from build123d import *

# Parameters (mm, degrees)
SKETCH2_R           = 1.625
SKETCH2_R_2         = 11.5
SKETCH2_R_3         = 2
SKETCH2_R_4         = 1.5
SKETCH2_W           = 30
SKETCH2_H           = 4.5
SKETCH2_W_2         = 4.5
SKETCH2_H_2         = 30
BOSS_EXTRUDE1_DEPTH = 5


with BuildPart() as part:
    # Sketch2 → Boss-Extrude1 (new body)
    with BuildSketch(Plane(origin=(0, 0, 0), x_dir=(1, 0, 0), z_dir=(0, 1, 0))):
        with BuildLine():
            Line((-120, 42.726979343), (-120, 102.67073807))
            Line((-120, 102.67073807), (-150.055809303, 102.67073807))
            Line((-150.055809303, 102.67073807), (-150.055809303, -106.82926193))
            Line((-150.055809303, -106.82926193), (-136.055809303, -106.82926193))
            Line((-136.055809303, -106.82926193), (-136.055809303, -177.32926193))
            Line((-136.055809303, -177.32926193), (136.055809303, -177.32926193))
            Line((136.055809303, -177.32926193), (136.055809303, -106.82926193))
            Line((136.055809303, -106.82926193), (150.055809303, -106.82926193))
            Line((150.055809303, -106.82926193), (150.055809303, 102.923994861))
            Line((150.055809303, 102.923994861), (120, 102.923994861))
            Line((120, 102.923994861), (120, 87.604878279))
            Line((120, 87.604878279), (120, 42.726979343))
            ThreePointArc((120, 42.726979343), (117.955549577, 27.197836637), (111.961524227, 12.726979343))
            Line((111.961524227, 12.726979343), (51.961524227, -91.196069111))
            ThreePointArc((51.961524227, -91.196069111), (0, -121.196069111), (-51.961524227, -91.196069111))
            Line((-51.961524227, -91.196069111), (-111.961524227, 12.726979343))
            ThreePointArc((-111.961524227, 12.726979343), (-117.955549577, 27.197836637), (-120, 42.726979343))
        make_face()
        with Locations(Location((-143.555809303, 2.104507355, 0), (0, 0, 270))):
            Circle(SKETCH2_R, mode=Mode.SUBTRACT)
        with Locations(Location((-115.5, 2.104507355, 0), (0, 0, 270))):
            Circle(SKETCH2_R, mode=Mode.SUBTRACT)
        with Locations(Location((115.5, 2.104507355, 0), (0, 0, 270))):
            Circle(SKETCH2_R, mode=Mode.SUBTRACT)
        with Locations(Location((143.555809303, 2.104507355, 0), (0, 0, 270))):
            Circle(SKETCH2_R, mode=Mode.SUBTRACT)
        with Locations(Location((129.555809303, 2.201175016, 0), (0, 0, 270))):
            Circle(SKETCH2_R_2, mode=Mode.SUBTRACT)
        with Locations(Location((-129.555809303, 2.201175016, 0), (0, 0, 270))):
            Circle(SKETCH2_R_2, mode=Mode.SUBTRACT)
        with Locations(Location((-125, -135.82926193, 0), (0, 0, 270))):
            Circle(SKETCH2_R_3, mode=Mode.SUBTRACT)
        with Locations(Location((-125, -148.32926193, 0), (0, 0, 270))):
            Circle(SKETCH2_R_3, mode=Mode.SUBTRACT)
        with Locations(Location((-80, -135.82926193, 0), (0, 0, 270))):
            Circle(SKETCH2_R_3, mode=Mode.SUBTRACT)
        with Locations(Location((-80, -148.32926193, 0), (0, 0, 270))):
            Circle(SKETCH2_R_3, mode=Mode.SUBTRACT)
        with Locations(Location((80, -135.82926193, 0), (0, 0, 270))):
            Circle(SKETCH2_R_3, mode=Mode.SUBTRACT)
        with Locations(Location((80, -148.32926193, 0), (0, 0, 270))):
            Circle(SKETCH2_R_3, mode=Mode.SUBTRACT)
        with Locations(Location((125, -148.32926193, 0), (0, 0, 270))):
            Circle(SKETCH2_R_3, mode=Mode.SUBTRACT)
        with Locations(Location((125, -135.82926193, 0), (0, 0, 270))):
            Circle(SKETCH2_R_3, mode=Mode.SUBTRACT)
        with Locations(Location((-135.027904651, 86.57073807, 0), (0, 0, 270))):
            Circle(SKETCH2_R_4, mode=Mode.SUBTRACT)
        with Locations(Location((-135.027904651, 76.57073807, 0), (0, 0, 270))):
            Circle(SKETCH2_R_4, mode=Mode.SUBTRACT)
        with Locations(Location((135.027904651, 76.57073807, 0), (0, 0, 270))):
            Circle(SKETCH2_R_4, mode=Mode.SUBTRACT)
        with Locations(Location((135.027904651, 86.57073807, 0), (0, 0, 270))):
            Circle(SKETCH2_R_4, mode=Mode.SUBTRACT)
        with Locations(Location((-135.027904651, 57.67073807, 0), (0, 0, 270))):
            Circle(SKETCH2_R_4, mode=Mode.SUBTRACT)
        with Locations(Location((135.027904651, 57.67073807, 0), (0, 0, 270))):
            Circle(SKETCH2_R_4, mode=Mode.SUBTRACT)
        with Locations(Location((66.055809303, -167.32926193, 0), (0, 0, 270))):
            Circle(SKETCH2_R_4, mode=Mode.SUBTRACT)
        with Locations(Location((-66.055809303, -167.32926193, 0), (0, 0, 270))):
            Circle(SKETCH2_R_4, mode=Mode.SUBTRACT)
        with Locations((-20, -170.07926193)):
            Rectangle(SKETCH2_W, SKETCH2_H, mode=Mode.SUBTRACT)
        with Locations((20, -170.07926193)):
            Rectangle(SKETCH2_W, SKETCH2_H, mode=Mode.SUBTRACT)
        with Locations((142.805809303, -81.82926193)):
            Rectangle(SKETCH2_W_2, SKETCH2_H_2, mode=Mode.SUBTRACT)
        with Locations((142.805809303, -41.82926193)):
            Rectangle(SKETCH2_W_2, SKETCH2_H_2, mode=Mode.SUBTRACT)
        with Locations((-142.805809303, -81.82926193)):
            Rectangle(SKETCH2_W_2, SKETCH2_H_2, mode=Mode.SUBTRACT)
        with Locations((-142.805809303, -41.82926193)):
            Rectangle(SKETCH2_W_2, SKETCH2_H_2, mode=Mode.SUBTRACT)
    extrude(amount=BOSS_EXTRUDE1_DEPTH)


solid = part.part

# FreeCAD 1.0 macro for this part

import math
import FreeCAD as App
import Part
import Sketcher
from FreeCAD import Vector
Q = App.Units.Quantity


def add_polygon(sketch, points):
    """Adds a closed chain of lines whose ends are joined by coincident constraints."""
    first, n = sketch.GeometryCount, len(points)
    for a, b in zip(points, points[1:] + points[:1]):
        sketch.addGeometry(Part.LineSegment(App.Vector(*a, 0), App.Vector(*b, 0)), False)
    for i in range(n):
        sketch.addConstraint(Sketcher.Constraint("Coincident", first + i, 2, first + (i + 1) % n, 1))

doc = App.newDocument("Part")
params = doc.addObject("Spreadsheet::Sheet", "Params")
for row, (alias, value) in enumerate([
    ("sketch1_diameter", "4 mm"),
    ("sketch1_diameter2", "3 mm"),
    ("sketch1_diameter3", "23 mm"),
    ("sketch1_radius", "60 mm"),
    ("sketch1_diameter4", "3.25 mm"),
    ("pad1_length", "5 mm"),
], start=1):
    params.set(f"A{row}", alias)
    params.set(f"B{row}", "=" + value)
    params.setAlias(f"B{row}", alias)

body = doc.addObject("PartDesign::Body", "Body")

# Sketch on XZ plane
sketch1 = body.newObject("Sketcher::SketchObject", "Sketch")
sketch1.AttachmentSupport = (doc.getObject("XZ_Plane"), [""])
sketch1.MapMode = "FlatFace"
sketch1.addGeometry(Part.LineSegment(Vector(-120, -42.726979, 0), Vector(-120, -102.670738, 0)), False)  # 0
sketch1.addGeometry(Part.LineSegment(Vector(-120, -102.670738, 0), Vector(-150.055809, -102.670738, 0)), False)  # 1
sketch1.addGeometry(Part.LineSegment(Vector(-150.055809, -102.670738, 0), Vector(-150.055809, 106.829262, 0)), False)  # 2
sketch1.addGeometry(Part.LineSegment(Vector(-150.055809, 106.829262, 0), Vector(-136.055809, 106.829262, 0)), False)  # 3
sketch1.addGeometry(Part.LineSegment(Vector(-136.055809, 106.829262, 0), Vector(-136.055809, 177.329262, 0)), False)  # 4
sketch1.addGeometry(Part.LineSegment(Vector(-136.055809, 177.329262, 0), Vector(136.055809, 177.329262, 0)), False)  # 5
sketch1.addGeometry(Part.LineSegment(Vector(136.055809, 177.329262, 0), Vector(136.055809, 106.829262, 0)), False)  # 6
sketch1.addGeometry(Part.LineSegment(Vector(136.055809, 106.829262, 0), Vector(150.055809, 106.829262, 0)), False)  # 7
sketch1.addGeometry(Part.LineSegment(Vector(150.055809, 106.829262, 0), Vector(150.055809, -102.923995, 0)), False)  # 8
sketch1.addGeometry(Part.LineSegment(Vector(150.055809, -102.923995, 0), Vector(120, -102.923995, 0)), False)  # 9
sketch1.addGeometry(Part.LineSegment(Vector(120, -102.923995, 0), Vector(120, -42.726979, 0)), False)  # 10
sketch1.addGeometry(Part.ArcOfCircle(Part.Circle(Vector(60, -42.726979, 0), Vector(0, 0, 1), 60), math.radians(0), math.radians(30)), False)  # 11
sketch1.addGeometry(Part.LineSegment(Vector(111.961524, -12.726979, 0), Vector(51.961524, 91.196069, 0)), False)  # 12
sketch1.addGeometry(Part.ArcOfCircle(Part.Circle(Vector(0, 61.196069, 0), Vector(0, 0, 1), 60), math.radians(30), math.radians(150)), False)  # 13
sketch1.addGeometry(Part.LineSegment(Vector(-51.961524, 91.196069, 0), Vector(-111.961524, -12.726979, 0)), False)  # 14
sketch1.addGeometry(Part.ArcOfCircle(Part.Circle(Vector(-60, -42.726979, 0), Vector(0, 0, 1), 60), math.radians(150), math.radians(180)), False)  # 15
sketch1.addGeometry(Part.Circle(Vector(-125, 148.329262, 0), Vector(0, 0, 1), 2), False)  # 16
sketch1.addGeometry(Part.Circle(Vector(-80, 148.329262, 0), Vector(0, 0, 1), 2), False)  # 17
sketch1.addGeometry(Part.Circle(Vector(-125, 135.829262, 0), Vector(0, 0, 1), 2), False)  # 18
sketch1.addGeometry(Part.Circle(Vector(-80, 135.829262, 0), Vector(0, 0, 1), 2), False)  # 19
sketch1.addGeometry(Part.Circle(Vector(-66.055809, 167.329262, 0), Vector(0, 0, 1), 1.5), False)  # 20
add_polygon(sketch1, [(-5, 172.329262), (-35, 172.329262), (-35, 167.829262), (-5, 167.829262)])  # lines 21-24
add_polygon(sketch1, [(-140.555809, 96.829262), (-145.055809, 96.829262), (-145.055809, 66.829262), (-140.555809, 66.829262)])  # lines 25-28
add_polygon(sketch1, [(35, 172.329262), (5, 172.329262), (5, 167.829262), (35, 167.829262)])  # lines 29-32
sketch1.addGeometry(Part.Circle(Vector(66.055809, 167.329262, 0), Vector(0, 0, 1), 1.5), False)  # 33
sketch1.addGeometry(Part.Circle(Vector(80, 148.329262, 0), Vector(0, 0, 1), 2), False)  # 34
sketch1.addGeometry(Part.Circle(Vector(125, 148.329262, 0), Vector(0, 0, 1), 2), False)  # 35
sketch1.addGeometry(Part.Circle(Vector(80, 135.829262, 0), Vector(0, 0, 1), 2), False)  # 36
sketch1.addGeometry(Part.Circle(Vector(125, 135.829262, 0), Vector(0, 0, 1), 2), False)  # 37
add_polygon(sketch1, [(145.055809, 96.829262), (140.555809, 96.829262), (140.555809, 66.829262), (145.055809, 66.829262)])  # lines 38-41
add_polygon(sketch1, [(-140.555809, 56.829262), (-145.055809, 56.829262), (-145.055809, 26.829262), (-140.555809, 26.829262)])  # lines 42-45
sketch1.addGeometry(Part.Circle(Vector(-143.555809, -2.104507, 0), Vector(0, 0, 1), 1.625), False)  # 46
sketch1.addGeometry(Part.Circle(Vector(-129.555809, -2.201175, 0), Vector(0, 0, 1), 11.5), False)  # 47
sketch1.addGeometry(Part.Circle(Vector(-115.5, -2.104507, 0), Vector(0, 0, 1), 1.625), False)  # 48
sketch1.addGeometry(Part.Circle(Vector(-135.027905, -57.670738, 0), Vector(0, 0, 1), 1.5), False)  # 49
sketch1.addGeometry(Part.Circle(Vector(-135.027905, -76.570738, 0), Vector(0, 0, 1), 1.5), False)  # 50
sketch1.addGeometry(Part.Circle(Vector(-135.027905, -86.570738, 0), Vector(0, 0, 1), 1.5), False)  # 51
add_polygon(sketch1, [(145.055809, 56.829262), (140.555809, 56.829262), (140.555809, 26.829262), (145.055809, 26.829262)])  # lines 52-55
sketch1.addGeometry(Part.Circle(Vector(115.5, -2.104507, 0), Vector(0, 0, 1), 1.625), False)  # 56
sketch1.addGeometry(Part.Circle(Vector(129.555809, -2.201175, 0), Vector(0, 0, 1), 11.5), False)  # 57
sketch1.addGeometry(Part.Circle(Vector(143.555809, -2.104507, 0), Vector(0, 0, 1), 1.625), False)  # 58
sketch1.addGeometry(Part.Circle(Vector(135.027905, -57.670738, 0), Vector(0, 0, 1), 1.5), False)  # 59
sketch1.addGeometry(Part.Circle(Vector(135.027905, -76.570738, 0), Vector(0, 0, 1), 1.5), False)  # 60
sketch1.addGeometry(Part.Circle(Vector(135.027905, -86.570738, 0), Vector(0, 0, 1), 1.5), False)  # 61
sketch1.addConstraint([
    Sketcher.Constraint("Coincident", 0, 2, 1, 1),
    Sketcher.Constraint("Coincident", 1, 2, 2, 1),
    Sketcher.Constraint("Coincident", 2, 2, 3, 1),
    Sketcher.Constraint("Coincident", 3, 2, 4, 1),
    Sketcher.Constraint("Coincident", 4, 2, 5, 1),
    Sketcher.Constraint("Coincident", 5, 2, 6, 1),
    Sketcher.Constraint("Coincident", 6, 2, 7, 1),
    Sketcher.Constraint("Coincident", 7, 2, 8, 1),
    Sketcher.Constraint("Coincident", 8, 2, 9, 1),
    Sketcher.Constraint("Coincident", 9, 2, 10, 1),
    Sketcher.Constraint("Tangent", 10, 2, 11, 1),
    Sketcher.Constraint("Tangent", 11, 2, 12, 1),
    Sketcher.Constraint("Tangent", 12, 2, 13, 1),
    Sketcher.Constraint("Tangent", 13, 2, 14, 1),
    Sketcher.Constraint("Tangent", 14, 2, 15, 1),
    Sketcher.Constraint("Tangent", 15, 2, 0, 1),
    Sketcher.Constraint("Vertical", 0),
    Sketcher.Constraint("Horizontal", 1),
    Sketcher.Constraint("Vertical", 2),
    Sketcher.Constraint("Horizontal", 3),
    Sketcher.Constraint("Vertical", 4),
    Sketcher.Constraint("Horizontal", 5),
    Sketcher.Constraint("Vertical", 6),
    Sketcher.Constraint("Horizontal", 7),
    Sketcher.Constraint("Vertical", 8),
    Sketcher.Constraint("Horizontal", 9),
    Sketcher.Constraint("Vertical", 10),
    Sketcher.Constraint("Horizontal", 21),
    Sketcher.Constraint("Vertical", 22),
    Sketcher.Constraint("Horizontal", 23),
    Sketcher.Constraint("Vertical", 24),
    Sketcher.Constraint("Horizontal", 25),
    Sketcher.Constraint("Vertical", 26),
    Sketcher.Constraint("Horizontal", 27),
    Sketcher.Constraint("Vertical", 28),
    Sketcher.Constraint("Horizontal", 29),
    Sketcher.Constraint("Vertical", 30),
    Sketcher.Constraint("Horizontal", 31),
    Sketcher.Constraint("Vertical", 32),
    Sketcher.Constraint("Horizontal", 38),
    Sketcher.Constraint("Vertical", 39),
    Sketcher.Constraint("Horizontal", 40),
    Sketcher.Constraint("Vertical", 41),
    Sketcher.Constraint("Horizontal", 42),
    Sketcher.Constraint("Vertical", 43),
    Sketcher.Constraint("Horizontal", 44),
    Sketcher.Constraint("Vertical", 45),
    Sketcher.Constraint("Horizontal", 52),
    Sketcher.Constraint("Vertical", 53),
    Sketcher.Constraint("Horizontal", 54),
    Sketcher.Constraint("Vertical", 55),
    Sketcher.Constraint("Equal", 11, 13),
    Sketcher.Constraint("Equal", 13, 15),
    Sketcher.Constraint("Equal", 16, 17),
    Sketcher.Constraint("Equal", 17, 18),
    Sketcher.Constraint("Equal", 18, 19),
    Sketcher.Constraint("Equal", 20, 33),
    Sketcher.Constraint("Equal", 19, 34),
    Sketcher.Constraint("Equal", 34, 35),
    Sketcher.Constraint("Equal", 35, 36),
    Sketcher.Constraint("Equal", 36, 37),
    Sketcher.Constraint("Equal", 46, 48),
    Sketcher.Constraint("Equal", 33, 49),
    Sketcher.Constraint("Equal", 49, 50),
    Sketcher.Constraint("Equal", 50, 51),
    Sketcher.Constraint("Equal", 48, 56),
    Sketcher.Constraint("Equal", 47, 57),
    Sketcher.Constraint("Equal", 56, 58),
    Sketcher.Constraint("Equal", 51, 59),
    Sketcher.Constraint("Equal", 59, 60),
    Sketcher.Constraint("Equal", 60, 61),
    Sketcher.Constraint("Symmetric", 11, 3, 15, 3, -2),
    Sketcher.Constraint("Symmetric", 20, 3, 33, 3, -2),
    Sketcher.Constraint("Symmetric", 17, 3, 34, 3, -2),
    Sketcher.Constraint("Symmetric", 16, 3, 35, 3, -2),
    Sketcher.Constraint("Symmetric", 19, 3, 36, 3, -2),
    Sketcher.Constraint("Symmetric", 18, 3, 37, 3, -2),
    Sketcher.Constraint("Symmetric", 48, 3, 56, 3, -2),
    Sketcher.Constraint("Symmetric", 47, 3, 57, 3, -2),
    Sketcher.Constraint("Symmetric", 46, 3, 58, 3, -2),
    Sketcher.Constraint("Symmetric", 49, 3, 59, 3, -2),
    Sketcher.Constraint("Symmetric", 50, 3, 60, 3, -2),
    Sketcher.Constraint("Symmetric", 51, 3, 61, 3, -2),
    Sketcher.Constraint("Symmetric", 3, 2, 6, 2, -2),
    Sketcher.Constraint("Symmetric", 24, 2, 29, 2, -2),
    Sketcher.Constraint("Symmetric", 22, 2, 31, 2, -2),
    Sketcher.Constraint("Symmetric", 28, 2, 38, 2, -2),
    Sketcher.Constraint("Symmetric", 26, 2, 40, 2, -2),
    Sketcher.Constraint("Symmetric", 45, 2, 52, 2, -2),
    Sketcher.Constraint("Symmetric", 43, 2, 54, 2, -2),
    Sketcher.Constraint("PointOnObject", 13, 3, -2),
    Sketcher.Constraint("Horizontal", 16, 3, 17, 3),
    Sketcher.Constraint("Horizontal", 18, 3, 19, 3),
    Sketcher.Constraint("Horizontal", 46, 3, 48, 3),
    Sketcher.Constraint("Vertical", 16, 3, 18, 3),
    Sketcher.Constraint("Vertical", 17, 3, 19, 3),
    Sketcher.Constraint("Vertical", 49, 3, 50, 3),
    Sketcher.Constraint("Vertical", 50, 3, 51, 3),
    Sketcher.Constraint("Vertical", 26, 2, 42, 2),
    Sketcher.Constraint("Vertical", 28, 2, 44, 2),
    Sketcher.Constraint("Equal", 3, 7),
    Sketcher.Constraint("Equal", 54, 22),
    Sketcher.Constraint("Equal", 31, 26),
    Sketcher.Constraint("Equal", 41, 43),
    Sketcher.Constraint("Diameter", 16, Q("4 mm")),
    Sketcher.Constraint("Diameter", 20, Q("3 mm")),
    Sketcher.Constraint("Diameter", 47, Q("23 mm")),
    Sketcher.Constraint("Radius", 11, Q("60 mm")),
    Sketcher.Constraint("Diameter", 46, Q("3.25 mm")),
    Sketcher.Constraint("DistanceX", 3, 1, 3, 2, Q("14 mm")),
    Sketcher.Constraint("DistanceX", 21, 2, 21, 1, Q("30 mm")),
    Sketcher.Constraint("Angle", 12, Q("120 deg")),
    Sketcher.Constraint("Distance", 12, Q("120 mm")),
    Sketcher.Constraint("DistanceX", 25, 2, 25, 1, Q("4.5 mm")),
    Sketcher.Constraint("DistanceY", 2, 1, 2, 2, Q("209.5 mm")),
    Sketcher.Constraint("DistanceY", 4, 1, 4, 2, Q("70.5 mm")),
    Sketcher.Constraint("DistanceX", 16, 3, -1, 1, Q("125 mm")),
    Sketcher.Constraint("DistanceX", 17, 3, -1, 1, Q("80 mm")),
    Sketcher.Constraint("DistanceX", 21, 2, -1, 1, Q("35 mm")),
    Sketcher.Constraint("DistanceX", 48, 3, -1, 1, Q("115.5 mm")),
    Sketcher.Constraint("DistanceX", 1, 2, 1, 1, Q("30.055809 mm")),
    Sketcher.Constraint("DistanceY", 0, 2, 0, 1, Q("59.943759 mm")),
    Sketcher.Constraint("DistanceY", 8, 2, 8, 1, Q("209.753257 mm")),
    Sketcher.Constraint("DistanceY", 11, 3, -1, 1, Q("42.726979 mm")),
    Sketcher.Constraint("DistanceY", -1, 1, 16, 3, Q("148.329262 mm")),
    Sketcher.Constraint("DistanceY", -1, 1, 18, 3, Q("135.829262 mm")),
    Sketcher.Constraint("DistanceX", 20, 3, -1, 1, Q("66.055809 mm")),
    Sketcher.Constraint("DistanceY", -1, 1, 20, 3, Q("167.329262 mm")),
    Sketcher.Constraint("DistanceX", 46, 3, -1, 1, Q("143.555809 mm")),
    Sketcher.Constraint("DistanceX", 47, 3, -1, 1, Q("129.555809 mm")),
    Sketcher.Constraint("DistanceY", 49, 3, -1, 1, Q("57.670738 mm")),
    Sketcher.Constraint("DistanceY", 50, 3, -1, 1, Q("76.570738 mm")),
    Sketcher.Constraint("DistanceY", 51, 3, -1, 1, Q("86.570738 mm")),
    Sketcher.Constraint("DistanceY", -1, 1, 21, 2, Q("172.329262 mm")),
    Sketcher.Constraint("DistanceX", 25, 2, -1, 1, Q("145.055809 mm")),
    Sketcher.Constraint("DistanceY", -1, 1, 25, 2, Q("96.829262 mm")),
    Sketcher.Constraint("DistanceY", -1, 1, 42, 2, Q("56.829262 mm")),
    Sketcher.Constraint("DistanceY", 46, 3, -1, 1, Q("2.104507 mm")),
    Sketcher.Constraint("DistanceY", 47, 3, -1, 1, Q("2.201175 mm")),
    Sketcher.Constraint("DistanceX", 49, 3, -1, 1, Q("135.027905 mm")),
])
sketch1.setExpression("Constraints[128]", "Params.sketch1_diameter")
sketch1.setExpression("Constraints[129]", "Params.sketch1_diameter2")
sketch1.setExpression("Constraints[130]", "Params.sketch1_diameter3")
sketch1.setExpression("Constraints[131]", "Params.sketch1_radius")
sketch1.setExpression("Constraints[132]", "Params.sketch1_diameter4")
pad1 = body.newObject("PartDesign::Pad", "Pad")
pad1.Profile = sketch1
pad1.setExpression("Length", "Params.pad1_length")
pad1.Reversed = True

doc.recompute()
